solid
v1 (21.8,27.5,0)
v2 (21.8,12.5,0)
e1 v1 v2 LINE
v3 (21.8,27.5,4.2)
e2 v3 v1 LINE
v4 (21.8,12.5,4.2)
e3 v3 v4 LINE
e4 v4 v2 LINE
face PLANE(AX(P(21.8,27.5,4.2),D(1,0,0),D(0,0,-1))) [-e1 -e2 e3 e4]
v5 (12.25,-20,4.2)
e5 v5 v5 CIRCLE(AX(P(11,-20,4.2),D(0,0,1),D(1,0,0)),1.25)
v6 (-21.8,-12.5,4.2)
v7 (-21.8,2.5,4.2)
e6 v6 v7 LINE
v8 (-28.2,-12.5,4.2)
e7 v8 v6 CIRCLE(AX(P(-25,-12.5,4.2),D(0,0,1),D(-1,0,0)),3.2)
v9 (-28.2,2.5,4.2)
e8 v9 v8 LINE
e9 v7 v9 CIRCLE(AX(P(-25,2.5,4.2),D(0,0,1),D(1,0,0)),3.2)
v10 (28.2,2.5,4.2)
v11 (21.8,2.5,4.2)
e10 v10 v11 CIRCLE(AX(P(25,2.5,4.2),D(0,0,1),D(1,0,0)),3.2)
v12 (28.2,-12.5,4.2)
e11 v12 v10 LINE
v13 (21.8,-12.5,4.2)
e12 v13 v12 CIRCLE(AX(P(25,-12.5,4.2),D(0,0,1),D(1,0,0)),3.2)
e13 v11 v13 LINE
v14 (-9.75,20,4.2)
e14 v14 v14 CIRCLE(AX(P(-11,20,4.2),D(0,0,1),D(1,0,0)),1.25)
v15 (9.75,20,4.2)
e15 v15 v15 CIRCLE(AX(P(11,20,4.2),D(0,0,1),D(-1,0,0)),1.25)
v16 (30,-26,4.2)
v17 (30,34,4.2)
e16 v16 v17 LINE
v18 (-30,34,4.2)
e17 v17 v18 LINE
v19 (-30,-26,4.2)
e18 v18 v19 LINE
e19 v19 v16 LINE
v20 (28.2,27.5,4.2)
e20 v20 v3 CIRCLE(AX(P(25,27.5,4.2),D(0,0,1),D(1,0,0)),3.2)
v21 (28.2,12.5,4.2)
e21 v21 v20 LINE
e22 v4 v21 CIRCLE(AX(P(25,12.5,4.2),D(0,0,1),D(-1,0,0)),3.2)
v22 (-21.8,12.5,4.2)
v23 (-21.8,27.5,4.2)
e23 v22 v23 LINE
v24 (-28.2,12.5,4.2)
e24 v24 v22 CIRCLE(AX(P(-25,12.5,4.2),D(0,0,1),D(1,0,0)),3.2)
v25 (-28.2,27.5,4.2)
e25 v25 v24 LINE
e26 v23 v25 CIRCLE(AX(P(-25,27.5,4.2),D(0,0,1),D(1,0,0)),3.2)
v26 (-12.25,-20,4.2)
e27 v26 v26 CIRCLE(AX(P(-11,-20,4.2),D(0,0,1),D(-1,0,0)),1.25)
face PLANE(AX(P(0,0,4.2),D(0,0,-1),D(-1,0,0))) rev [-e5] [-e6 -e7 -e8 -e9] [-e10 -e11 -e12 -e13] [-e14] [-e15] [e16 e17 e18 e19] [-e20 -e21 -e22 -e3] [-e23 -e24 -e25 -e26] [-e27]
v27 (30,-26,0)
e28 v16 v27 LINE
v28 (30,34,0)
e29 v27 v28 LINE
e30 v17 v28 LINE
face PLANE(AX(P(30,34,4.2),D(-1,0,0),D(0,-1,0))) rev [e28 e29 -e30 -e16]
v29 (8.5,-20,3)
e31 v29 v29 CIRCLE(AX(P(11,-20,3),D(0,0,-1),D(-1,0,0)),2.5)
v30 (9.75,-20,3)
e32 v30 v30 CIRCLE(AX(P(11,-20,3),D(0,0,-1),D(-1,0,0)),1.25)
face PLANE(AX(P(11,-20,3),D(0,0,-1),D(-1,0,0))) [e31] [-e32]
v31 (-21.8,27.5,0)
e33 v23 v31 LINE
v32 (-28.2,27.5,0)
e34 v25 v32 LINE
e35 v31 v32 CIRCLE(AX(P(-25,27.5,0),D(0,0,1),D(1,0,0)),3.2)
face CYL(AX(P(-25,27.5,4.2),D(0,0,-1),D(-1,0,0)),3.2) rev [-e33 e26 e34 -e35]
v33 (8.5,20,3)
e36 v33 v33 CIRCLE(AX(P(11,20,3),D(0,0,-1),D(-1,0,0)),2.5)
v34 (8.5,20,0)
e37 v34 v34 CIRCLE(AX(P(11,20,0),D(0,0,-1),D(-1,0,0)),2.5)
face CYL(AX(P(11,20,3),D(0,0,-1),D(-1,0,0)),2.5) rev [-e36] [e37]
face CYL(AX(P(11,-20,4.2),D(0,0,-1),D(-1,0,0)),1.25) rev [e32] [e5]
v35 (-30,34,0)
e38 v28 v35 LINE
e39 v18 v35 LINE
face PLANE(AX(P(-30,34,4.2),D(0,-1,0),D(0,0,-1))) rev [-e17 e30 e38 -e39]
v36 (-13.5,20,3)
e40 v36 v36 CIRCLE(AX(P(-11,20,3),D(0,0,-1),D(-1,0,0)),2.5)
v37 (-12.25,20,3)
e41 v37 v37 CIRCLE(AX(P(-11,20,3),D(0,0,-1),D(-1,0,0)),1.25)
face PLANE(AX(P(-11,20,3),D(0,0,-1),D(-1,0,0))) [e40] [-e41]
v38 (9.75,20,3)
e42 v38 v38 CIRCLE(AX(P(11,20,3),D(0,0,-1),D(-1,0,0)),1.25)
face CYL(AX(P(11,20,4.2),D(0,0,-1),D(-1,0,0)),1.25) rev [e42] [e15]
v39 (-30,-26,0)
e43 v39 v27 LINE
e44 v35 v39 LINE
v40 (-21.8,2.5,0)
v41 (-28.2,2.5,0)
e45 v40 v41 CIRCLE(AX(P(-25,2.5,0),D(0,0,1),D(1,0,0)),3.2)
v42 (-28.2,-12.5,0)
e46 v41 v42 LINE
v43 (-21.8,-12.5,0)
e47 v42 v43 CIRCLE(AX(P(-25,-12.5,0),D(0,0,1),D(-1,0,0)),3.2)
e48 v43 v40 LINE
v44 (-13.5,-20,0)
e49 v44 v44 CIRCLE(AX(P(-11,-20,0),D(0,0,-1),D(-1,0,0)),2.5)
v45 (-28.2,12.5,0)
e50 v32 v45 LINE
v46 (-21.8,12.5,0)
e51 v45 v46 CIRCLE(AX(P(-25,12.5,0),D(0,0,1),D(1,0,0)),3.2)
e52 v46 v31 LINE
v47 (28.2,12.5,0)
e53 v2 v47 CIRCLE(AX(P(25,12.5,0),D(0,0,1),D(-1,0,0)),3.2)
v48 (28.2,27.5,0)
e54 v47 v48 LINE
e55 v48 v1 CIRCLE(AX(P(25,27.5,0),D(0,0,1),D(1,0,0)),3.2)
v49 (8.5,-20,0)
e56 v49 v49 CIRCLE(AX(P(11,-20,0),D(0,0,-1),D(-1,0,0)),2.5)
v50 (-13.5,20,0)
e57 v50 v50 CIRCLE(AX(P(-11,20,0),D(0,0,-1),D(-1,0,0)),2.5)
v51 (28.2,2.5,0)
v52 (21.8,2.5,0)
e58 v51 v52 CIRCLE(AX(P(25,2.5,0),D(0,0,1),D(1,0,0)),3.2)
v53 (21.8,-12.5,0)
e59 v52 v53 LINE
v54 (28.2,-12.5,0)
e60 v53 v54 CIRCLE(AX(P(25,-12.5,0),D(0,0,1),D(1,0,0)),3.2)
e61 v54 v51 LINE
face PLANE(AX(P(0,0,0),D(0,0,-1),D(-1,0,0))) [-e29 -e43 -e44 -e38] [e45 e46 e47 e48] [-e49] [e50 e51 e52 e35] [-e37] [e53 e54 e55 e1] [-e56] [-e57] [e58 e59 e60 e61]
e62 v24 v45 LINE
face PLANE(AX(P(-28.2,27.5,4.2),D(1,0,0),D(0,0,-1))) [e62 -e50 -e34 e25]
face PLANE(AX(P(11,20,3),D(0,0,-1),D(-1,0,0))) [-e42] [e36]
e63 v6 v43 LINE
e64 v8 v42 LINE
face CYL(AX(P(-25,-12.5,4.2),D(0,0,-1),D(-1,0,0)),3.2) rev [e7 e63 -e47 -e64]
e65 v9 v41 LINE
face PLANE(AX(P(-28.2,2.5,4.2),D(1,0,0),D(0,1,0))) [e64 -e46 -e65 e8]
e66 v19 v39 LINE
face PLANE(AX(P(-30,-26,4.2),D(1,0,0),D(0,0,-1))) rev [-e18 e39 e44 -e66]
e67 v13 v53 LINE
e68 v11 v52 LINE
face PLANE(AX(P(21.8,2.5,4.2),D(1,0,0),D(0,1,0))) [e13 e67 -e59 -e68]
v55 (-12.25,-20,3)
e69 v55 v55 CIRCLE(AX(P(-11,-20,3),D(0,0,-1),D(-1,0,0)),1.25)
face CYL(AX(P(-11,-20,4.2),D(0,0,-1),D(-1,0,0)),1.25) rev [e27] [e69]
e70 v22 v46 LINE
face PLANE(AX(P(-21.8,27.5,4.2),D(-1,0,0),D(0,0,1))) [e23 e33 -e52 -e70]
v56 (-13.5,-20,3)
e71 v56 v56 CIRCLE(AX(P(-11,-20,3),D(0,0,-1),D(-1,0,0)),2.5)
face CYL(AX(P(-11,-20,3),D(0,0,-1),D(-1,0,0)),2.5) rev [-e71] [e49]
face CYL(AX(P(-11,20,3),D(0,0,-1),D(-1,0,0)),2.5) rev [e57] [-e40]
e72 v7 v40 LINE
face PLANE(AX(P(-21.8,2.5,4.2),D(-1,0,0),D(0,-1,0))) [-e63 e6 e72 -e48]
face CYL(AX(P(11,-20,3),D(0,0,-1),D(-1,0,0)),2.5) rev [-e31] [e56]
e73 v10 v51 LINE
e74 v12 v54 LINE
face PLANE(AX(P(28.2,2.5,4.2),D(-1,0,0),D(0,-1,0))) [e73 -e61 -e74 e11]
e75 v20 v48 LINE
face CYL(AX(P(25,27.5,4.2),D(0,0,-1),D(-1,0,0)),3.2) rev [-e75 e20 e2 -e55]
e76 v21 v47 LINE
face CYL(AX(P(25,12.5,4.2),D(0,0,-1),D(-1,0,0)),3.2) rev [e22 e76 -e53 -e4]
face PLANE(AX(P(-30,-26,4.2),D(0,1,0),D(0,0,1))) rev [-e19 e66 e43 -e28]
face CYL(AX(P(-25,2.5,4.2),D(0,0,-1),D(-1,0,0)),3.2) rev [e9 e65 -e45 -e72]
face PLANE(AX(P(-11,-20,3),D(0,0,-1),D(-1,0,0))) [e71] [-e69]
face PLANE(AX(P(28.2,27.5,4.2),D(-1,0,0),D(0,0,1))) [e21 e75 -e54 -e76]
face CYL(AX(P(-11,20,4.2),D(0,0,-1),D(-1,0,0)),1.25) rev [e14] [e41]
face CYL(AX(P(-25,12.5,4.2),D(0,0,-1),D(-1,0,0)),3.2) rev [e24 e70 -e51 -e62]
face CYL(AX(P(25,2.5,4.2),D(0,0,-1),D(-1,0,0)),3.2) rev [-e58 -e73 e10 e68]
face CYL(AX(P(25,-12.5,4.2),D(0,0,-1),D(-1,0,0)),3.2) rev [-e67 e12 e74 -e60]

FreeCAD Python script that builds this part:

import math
import FreeCAD as App
import Part
import Sketcher
from FreeCAD import Vector

doc = App.newDocument("Part")
body = doc.addObject("PartDesign::Body", "Body")

# Sketch on XY plane
sketch1 = doc.addObject("Sketcher::SketchObject", "Sketch")
body.addObject(sketch1)
sketch1.AttachmentSupport = (doc.XY_Plane, [""])
sketch1.MapMode = "FlatFace"
sketch1.addGeometry([
    Part.LineSegment(Vector(-30, 34, 0), Vector(-30, -26, 0)),  # 0
    Part.LineSegment(Vector(-30, -26, 0), Vector(30, -26, 0)),  # 1
    Part.LineSegment(Vector(30, -26, 0), Vector(30, 34, 0)),  # 2
    Part.LineSegment(Vector(30, 34, 0), Vector(-30, 34, 0)),  # 3
    Part.Circle(Vector(-11, -20, 0), Vector(0, 0, 1), 1.2),  # 4
    Part.LineSegment(Vector(-28.2, -12.5, 0), Vector(-28.2, 2.5, 0)),  # 5
    Part.ArcOfCircle(Part.Circle(Vector(-25, 2.5, 0), Vector(0, 0, 1), 3.2), math.radians(0), math.radians(180)),  # 6
    Part.LineSegment(Vector(-21.8, 2.5, 0), Vector(-21.8, -12.5, 0)),  # 7
    Part.ArcOfCircle(Part.Circle(Vector(-25, -12.5, 0), Vector(0, 0, 1), 3.2), math.radians(180), math.radians(360)),  # 8
    Part.Circle(Vector(11, -20, 0), Vector(0, 0, 1), 1.2),  # 9
    Part.LineSegment(Vector(21.8, -12.5, 0), Vector(21.8, 2.5, 0)),  # 10
    Part.ArcOfCircle(Part.Circle(Vector(25, 2.5, 0), Vector(0, 0, 1), 3.2), math.radians(0), math.radians(180)),  # 11
    Part.LineSegment(Vector(28.2, 2.5, 0), Vector(28.2, -12.5, 0)),  # 12
    Part.ArcOfCircle(Part.Circle(Vector(25, -12.5, 0), Vector(0, 0, 1), 3.2), math.radians(180), math.radians(360)),  # 13
    Part.LineSegment(Vector(-28.2, 12.5, 0), Vector(-28.2, 27.5, 0)),  # 14
    Part.ArcOfCircle(Part.Circle(Vector(-25, 27.5, 0), Vector(0, 0, 1), 3.2), math.radians(0), math.radians(180)),  # 15
    Part.LineSegment(Vector(-21.8, 27.5, 0), Vector(-21.8, 12.5, 0)),  # 16
    Part.ArcOfCircle(Part.Circle(Vector(-25, 12.5, 0), Vector(0, 0, 1), 3.2), math.radians(180), math.radians(360)),  # 17
    Part.Circle(Vector(-11, 20, 0), Vector(0, 0, 1), 1.2),  # 18
    Part.Circle(Vector(11, 20, 0), Vector(0, 0, 1), 1.2),  # 19
    Part.LineSegment(Vector(21.8, 12.5, 0), Vector(21.8, 27.5, 0)),  # 20
    Part.ArcOfCircle(Part.Circle(Vector(25, 27.5, 0), Vector(0, 0, 1), 3.2), math.radians(0), math.radians(180)),  # 21
    Part.LineSegment(Vector(28.2, 27.5, 0), Vector(28.2, 12.5, 0)),  # 22
    Part.ArcOfCircle(Part.Circle(Vector(25, 12.5, 0), Vector(0, 0, 1), 3.2), math.radians(180), math.radians(360)),  # 23
], False)
sketch1.addConstraint([
    Sketcher.Constraint("Coincident", 0, 2, 1, 1),
    Sketcher.Constraint("Coincident", 1, 2, 2, 1),
    Sketcher.Constraint("Coincident", 2, 2, 3, 1),
    Sketcher.Constraint("Coincident", 3, 2, 0, 1),
    Sketcher.Constraint("Tangent", 5, 2, 6, 2),
    Sketcher.Constraint("Tangent", 6, 1, 7, 1),
    Sketcher.Constraint("Tangent", 7, 2, 8, 2),
    Sketcher.Constraint("Tangent", 8, 1, 5, 1),
    Sketcher.Constraint("Tangent", 10, 2, 11, 2),
    Sketcher.Constraint("Tangent", 11, 1, 12, 1),
    Sketcher.Constraint("Tangent", 12, 2, 13, 2),
    Sketcher.Constraint("Tangent", 13, 1, 10, 1),
    Sketcher.Constraint("Tangent", 14, 2, 15, 2),
    Sketcher.Constraint("Tangent", 15, 1, 16, 1),
    Sketcher.Constraint("Tangent", 16, 2, 17, 2),
    Sketcher.Constraint("Tangent", 17, 1, 14, 1),
    Sketcher.Constraint("Tangent", 20, 2, 21, 2),
    Sketcher.Constraint("Tangent", 21, 1, 22, 1),
    Sketcher.Constraint("Tangent", 22, 2, 23, 2),
    Sketcher.Constraint("Tangent", 23, 1, 20, 1),
    Sketcher.Constraint("Vertical", 0),
    Sketcher.Constraint("Horizontal", 1),
    Sketcher.Constraint("Vertical", 2),
    Sketcher.Constraint("Horizontal", 3),
    Sketcher.Constraint("Vertical", 5),
    Sketcher.Constraint("Vertical", 7),
    Sketcher.Constraint("Vertical", 10),
    Sketcher.Constraint("Vertical", 12),
    Sketcher.Constraint("Vertical", 14),
    Sketcher.Constraint("Vertical", 16),
    Sketcher.Constraint("Vertical", 20),
    Sketcher.Constraint("Vertical", 22),
    Sketcher.Constraint("Equal", 4, 9),
    Sketcher.Constraint("Equal", 8, 11),
    Sketcher.Constraint("Equal", 13, 15),
    Sketcher.Constraint("Equal", 9, 18),
    Sketcher.Constraint("Equal", 18, 19),
    Sketcher.Constraint("Equal", 17, 21),
    Sketcher.Constraint("Symmetric", 13, 3, 17, 3, -1, 1),
    Sketcher.Constraint("Symmetric", 9, 3, 18, 3, -1, 1),
    Sketcher.Constraint("Symmetric", 4, 3, 19, 3, -1, 1),
    Sketcher.Constraint("Symmetric", 8, 3, 23, 3, -1, 1),
    Sketcher.Constraint("Symmetric", 4, 3, 9, 3, -2),
    Sketcher.Constraint("Symmetric", 6, 3, 11, 3, -2),
    Sketcher.Constraint("Horizontal", 8, 3, 13, 3),
    Sketcher.Constraint("Horizontal", 15, 3, 21, 3),
    Sketcher.Constraint("Equal", 3, 0),
    Sketcher.Constraint("Equal", 12, 14),
    Sketcher.Constraint("Diameter", 4, 2.5),
    Sketcher.Constraint("Radius", 6, 3.2),
    Sketcher.Constraint("DistanceX", 1, 1, 1, 2, 60.0),
    Sketcher.Constraint("DistanceY", 5, 1, 5, 2, 15.0),
    Sketcher.Constraint("DistanceX", 4, 3, -1, 1, 11.0),
    Sketcher.Constraint("DistanceY", 4, 3, -1, 1, 20.0),
    Sketcher.Constraint("DistanceX", 6, 3, -1, 1, 25.0),
    Sketcher.Constraint("DistanceX", 0, 2, -1, 1, 30.0),
    Sketcher.Constraint("DistanceY", 0, 2, -1, 1, 26.0),
    Sketcher.Constraint("DistanceY", 6, 3, 15, 3, 25.0),
])
pad1 = doc.addObject("PartDesign::Pad", "Pad")
body.addObject(pad1)
pad1.Profile = sketch1
pad1.Length = 4.2

# Sketch on XY plane
sketch2 = doc.addObject("Sketcher::SketchObject", "Sketch001")
body.addObject(sketch2)
sketch2.AttachmentSupport = (doc.XY_Plane, [""])
sketch2.MapMode = "FlatFace"
sketch2.addGeometry([
    Part.Circle(Vector(11, 20, 0), Vector(0, 0, 1), 2.5),
    Part.Circle(Vector(-11, 20, 0), Vector(0, 0, 1), 2.5),
    Part.Circle(Vector(11, -20, 0), Vector(0, 0, 1), 2.5),
    Part.Circle(Vector(-11, -20, 0), Vector(0, 0, 1), 2.5),
], False)
sketch2.addConstraint([
    Sketcher.Constraint("Equal", 0, 1),
    Sketcher.Constraint("Equal", 1, 2),
    Sketcher.Constraint("Equal", 2, 3),
    Sketcher.Constraint("Symmetric", 1, 3, 2, 3, -1, 1),
    Sketcher.Constraint("Symmetric", 0, 3, 3, 3, -1, 1),
    Sketcher.Constraint("Symmetric", 0, 3, 1, 3, -2),
    Sketcher.Constraint("Diameter", 0, 5.0),
    Sketcher.Constraint("DistanceX", -1, 1, 0, 3, 11.0),
    Sketcher.Constraint("DistanceY", -1, 1, 0, 3, 20.0),
])
pocket1 = doc.addObject("PartDesign::Pocket", "Pocket")
body.addObject(pocket1)
pocket1.Profile = sketch2
pocket1.Length = 3
pocket1.Reversed = True

doc.recompute()
